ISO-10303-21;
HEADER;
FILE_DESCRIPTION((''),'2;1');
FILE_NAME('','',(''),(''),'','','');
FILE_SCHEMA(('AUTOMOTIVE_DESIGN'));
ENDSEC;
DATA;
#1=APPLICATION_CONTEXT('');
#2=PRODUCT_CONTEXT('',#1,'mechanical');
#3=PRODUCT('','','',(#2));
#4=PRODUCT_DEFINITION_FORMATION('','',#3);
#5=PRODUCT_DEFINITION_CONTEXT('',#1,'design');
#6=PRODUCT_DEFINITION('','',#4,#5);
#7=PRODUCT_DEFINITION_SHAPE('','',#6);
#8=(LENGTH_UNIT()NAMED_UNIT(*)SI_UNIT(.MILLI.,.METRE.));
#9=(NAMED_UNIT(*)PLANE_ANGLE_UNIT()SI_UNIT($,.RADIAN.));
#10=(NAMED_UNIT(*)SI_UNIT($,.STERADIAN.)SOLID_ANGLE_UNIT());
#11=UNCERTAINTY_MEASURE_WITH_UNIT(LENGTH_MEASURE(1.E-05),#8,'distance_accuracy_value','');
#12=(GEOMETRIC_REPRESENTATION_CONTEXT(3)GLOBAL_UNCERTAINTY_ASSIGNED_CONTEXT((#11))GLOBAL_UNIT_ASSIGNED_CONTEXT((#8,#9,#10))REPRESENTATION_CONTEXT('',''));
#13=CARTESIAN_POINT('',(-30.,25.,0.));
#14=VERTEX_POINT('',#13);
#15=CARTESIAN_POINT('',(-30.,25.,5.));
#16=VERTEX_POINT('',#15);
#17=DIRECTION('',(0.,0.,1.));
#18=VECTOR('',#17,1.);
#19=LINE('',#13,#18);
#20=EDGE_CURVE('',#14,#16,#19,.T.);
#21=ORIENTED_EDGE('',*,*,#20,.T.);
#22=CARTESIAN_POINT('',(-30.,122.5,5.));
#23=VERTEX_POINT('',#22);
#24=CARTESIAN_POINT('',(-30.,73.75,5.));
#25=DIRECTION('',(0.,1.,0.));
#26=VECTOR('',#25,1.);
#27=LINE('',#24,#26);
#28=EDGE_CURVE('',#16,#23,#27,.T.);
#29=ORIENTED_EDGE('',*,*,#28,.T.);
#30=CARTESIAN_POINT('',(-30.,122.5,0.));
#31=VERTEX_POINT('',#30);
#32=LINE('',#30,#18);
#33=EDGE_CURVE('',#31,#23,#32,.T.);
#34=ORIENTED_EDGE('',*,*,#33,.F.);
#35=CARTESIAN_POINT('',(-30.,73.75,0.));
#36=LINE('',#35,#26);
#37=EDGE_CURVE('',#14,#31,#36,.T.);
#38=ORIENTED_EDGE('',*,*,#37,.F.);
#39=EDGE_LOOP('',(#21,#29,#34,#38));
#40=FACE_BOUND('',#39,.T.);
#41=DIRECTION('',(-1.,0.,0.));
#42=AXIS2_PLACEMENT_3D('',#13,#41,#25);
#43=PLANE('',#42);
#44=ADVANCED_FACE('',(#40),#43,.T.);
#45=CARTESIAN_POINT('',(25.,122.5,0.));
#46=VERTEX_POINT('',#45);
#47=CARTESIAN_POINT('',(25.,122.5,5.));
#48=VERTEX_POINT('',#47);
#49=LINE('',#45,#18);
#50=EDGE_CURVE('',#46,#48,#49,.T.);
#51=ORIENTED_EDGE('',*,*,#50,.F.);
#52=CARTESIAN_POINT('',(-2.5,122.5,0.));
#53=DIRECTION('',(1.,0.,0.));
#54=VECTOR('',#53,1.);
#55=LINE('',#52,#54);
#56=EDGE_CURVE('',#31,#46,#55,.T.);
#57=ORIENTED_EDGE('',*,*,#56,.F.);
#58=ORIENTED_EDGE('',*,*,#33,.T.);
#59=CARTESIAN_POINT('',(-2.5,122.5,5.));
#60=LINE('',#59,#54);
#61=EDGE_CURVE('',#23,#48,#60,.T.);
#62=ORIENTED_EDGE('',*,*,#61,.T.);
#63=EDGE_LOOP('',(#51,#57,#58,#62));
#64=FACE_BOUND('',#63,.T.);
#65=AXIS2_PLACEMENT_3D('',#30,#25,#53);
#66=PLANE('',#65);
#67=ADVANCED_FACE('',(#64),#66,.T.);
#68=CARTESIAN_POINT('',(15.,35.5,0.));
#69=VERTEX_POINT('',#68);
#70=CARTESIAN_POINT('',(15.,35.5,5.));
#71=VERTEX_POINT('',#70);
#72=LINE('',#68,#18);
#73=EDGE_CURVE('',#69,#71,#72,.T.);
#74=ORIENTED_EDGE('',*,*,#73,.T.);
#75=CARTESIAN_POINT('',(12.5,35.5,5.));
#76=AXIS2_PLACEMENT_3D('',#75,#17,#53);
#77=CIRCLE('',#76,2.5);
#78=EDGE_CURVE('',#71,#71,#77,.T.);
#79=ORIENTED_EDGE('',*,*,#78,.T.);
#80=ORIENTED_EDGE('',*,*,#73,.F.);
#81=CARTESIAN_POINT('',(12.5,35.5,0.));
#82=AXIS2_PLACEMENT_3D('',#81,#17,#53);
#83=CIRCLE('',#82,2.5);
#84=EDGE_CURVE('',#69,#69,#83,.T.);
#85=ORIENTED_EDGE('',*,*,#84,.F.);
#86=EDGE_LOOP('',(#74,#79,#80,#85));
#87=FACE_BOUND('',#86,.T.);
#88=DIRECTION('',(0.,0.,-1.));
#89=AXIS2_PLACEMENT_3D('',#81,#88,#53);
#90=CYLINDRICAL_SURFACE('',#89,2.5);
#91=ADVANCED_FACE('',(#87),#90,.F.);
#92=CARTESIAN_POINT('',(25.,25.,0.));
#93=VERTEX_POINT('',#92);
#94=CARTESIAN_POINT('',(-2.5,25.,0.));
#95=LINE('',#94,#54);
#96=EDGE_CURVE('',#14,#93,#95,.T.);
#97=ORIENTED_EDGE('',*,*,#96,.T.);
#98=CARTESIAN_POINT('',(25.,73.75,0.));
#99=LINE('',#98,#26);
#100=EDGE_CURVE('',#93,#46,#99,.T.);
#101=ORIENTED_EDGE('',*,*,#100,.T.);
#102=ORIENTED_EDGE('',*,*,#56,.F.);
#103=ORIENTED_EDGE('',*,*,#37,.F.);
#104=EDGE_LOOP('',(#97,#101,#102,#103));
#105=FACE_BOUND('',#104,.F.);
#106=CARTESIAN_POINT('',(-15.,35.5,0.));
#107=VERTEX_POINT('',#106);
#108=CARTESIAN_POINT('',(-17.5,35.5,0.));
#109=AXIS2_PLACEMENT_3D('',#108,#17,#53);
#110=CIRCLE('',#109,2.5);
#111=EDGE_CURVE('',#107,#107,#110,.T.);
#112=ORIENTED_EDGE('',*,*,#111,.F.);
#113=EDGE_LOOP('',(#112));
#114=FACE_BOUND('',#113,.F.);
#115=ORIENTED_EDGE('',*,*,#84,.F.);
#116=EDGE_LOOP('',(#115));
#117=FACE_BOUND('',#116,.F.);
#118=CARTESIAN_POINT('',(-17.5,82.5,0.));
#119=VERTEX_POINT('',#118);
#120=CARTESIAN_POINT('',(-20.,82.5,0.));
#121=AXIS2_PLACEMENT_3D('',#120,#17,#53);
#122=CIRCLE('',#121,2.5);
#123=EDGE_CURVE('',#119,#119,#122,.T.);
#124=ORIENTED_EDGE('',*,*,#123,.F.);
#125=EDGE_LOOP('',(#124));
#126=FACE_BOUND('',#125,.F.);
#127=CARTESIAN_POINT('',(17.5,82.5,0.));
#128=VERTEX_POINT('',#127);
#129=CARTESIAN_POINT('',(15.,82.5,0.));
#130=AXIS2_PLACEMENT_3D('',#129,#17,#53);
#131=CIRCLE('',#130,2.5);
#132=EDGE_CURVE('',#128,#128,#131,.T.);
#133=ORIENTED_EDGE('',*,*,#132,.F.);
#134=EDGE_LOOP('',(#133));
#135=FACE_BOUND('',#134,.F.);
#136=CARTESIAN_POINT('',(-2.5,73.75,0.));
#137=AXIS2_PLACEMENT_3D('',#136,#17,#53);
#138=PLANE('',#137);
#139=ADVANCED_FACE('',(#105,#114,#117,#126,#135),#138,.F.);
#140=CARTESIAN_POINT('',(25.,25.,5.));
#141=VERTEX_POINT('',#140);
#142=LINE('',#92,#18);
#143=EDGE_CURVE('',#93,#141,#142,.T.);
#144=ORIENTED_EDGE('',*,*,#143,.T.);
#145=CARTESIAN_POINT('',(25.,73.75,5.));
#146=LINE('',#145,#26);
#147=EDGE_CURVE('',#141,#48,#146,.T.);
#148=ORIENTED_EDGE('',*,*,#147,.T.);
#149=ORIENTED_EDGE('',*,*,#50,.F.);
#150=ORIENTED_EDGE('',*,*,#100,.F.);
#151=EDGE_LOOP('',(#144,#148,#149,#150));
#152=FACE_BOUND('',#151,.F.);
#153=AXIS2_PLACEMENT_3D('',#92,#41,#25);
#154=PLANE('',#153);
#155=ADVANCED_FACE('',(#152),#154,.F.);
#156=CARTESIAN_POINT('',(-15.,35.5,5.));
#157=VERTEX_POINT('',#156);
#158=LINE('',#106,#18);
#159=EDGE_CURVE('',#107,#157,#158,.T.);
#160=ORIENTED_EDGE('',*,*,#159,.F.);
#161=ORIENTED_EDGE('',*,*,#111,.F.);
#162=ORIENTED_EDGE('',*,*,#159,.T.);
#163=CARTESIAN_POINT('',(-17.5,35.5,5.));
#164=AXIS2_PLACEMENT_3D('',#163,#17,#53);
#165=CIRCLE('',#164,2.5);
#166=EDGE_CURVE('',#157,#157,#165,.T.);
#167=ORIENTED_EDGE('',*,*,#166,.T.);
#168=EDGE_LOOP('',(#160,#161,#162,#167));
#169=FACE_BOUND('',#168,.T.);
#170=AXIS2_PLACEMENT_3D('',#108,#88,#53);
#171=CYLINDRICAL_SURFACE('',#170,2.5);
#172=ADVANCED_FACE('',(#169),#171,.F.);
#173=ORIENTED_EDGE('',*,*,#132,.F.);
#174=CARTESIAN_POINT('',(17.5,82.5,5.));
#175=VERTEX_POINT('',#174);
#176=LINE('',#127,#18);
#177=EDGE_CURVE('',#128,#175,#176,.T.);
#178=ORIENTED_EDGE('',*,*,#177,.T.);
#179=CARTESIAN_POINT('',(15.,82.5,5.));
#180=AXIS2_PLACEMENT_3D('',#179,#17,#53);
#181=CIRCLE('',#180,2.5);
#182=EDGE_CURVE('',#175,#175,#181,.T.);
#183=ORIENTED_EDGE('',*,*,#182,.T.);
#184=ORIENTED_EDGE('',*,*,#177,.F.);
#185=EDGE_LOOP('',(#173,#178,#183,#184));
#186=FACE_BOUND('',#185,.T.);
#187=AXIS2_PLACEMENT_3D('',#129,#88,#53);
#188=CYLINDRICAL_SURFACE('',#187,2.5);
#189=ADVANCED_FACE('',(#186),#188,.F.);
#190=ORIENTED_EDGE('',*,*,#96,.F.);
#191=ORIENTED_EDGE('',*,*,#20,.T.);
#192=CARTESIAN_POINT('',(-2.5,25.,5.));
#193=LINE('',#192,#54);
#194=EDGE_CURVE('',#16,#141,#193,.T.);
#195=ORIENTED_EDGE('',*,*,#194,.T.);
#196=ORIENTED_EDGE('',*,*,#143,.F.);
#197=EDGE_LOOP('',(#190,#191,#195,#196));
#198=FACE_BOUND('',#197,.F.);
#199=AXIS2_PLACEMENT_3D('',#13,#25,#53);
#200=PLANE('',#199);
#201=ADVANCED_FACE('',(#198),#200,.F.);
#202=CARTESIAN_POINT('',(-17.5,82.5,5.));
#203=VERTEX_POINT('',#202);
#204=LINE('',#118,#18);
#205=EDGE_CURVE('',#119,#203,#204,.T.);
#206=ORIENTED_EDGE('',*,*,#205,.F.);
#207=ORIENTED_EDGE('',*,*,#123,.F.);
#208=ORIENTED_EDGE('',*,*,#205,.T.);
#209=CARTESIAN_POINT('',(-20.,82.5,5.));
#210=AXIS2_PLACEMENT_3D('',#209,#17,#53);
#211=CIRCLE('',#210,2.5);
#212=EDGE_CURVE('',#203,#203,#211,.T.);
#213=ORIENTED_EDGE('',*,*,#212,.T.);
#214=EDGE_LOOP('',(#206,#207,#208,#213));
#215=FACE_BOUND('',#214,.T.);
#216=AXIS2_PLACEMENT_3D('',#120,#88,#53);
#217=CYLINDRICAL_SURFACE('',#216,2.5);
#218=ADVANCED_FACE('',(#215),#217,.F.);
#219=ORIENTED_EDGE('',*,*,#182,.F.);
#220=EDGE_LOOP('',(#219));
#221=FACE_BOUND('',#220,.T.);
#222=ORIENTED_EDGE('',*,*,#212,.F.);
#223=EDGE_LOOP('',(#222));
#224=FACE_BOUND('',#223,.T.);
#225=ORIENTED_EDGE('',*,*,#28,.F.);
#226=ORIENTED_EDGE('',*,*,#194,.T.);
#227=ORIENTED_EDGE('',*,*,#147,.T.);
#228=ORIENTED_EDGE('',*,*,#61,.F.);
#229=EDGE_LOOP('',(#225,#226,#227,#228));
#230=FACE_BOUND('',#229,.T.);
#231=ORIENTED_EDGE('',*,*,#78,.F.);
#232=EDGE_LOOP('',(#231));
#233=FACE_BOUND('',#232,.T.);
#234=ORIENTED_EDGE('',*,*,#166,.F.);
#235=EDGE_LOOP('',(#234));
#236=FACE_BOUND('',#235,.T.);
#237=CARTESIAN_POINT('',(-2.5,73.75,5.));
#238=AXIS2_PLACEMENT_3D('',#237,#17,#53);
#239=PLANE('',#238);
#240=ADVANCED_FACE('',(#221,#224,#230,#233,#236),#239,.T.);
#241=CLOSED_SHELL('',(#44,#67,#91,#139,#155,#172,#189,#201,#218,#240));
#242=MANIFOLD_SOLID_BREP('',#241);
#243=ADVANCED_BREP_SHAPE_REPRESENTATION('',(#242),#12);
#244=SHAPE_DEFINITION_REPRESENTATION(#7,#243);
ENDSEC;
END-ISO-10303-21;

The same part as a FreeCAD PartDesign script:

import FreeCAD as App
import Part
import Sketcher

V = App.Vector
Q = App.Units.Quantity


def add_polygon(sketch, points):
    """Adds a closed chain of lines whose ends are joined by coincident constraints."""
    first, n = sketch.GeometryCount, len(points)
    for a, b in zip(points, points[1:] + points[:1]):
        sketch.addGeometry(Part.LineSegment(App.Vector(*a, 0), App.Vector(*b, 0)), False)
    for i in range(n):
        sketch.addConstraint(Sketcher.Constraint("Coincident", first + i, 2, first + (i + 1) % n, 1))

doc = App.newDocument("Part")
params = doc.addObject("Spreadsheet::Sheet", "Params")
for row, (alias, value) in enumerate([
    ("sketch1_diameter", "5 mm"),
    ("sketch1_width", "55 mm"),
    ("sketch1_height", "97.5 mm"),
    ("pad1_length", "5 mm"),
], start=1):
    params.set(f"A{row}", alias)
    params.set(f"B{row}", "=" + value)
    params.setAlias(f"B{row}", alias)

body = doc.addObject("PartDesign::Body", "Body")

# Sketch on XY plane
sketch1 = body.newObject("Sketcher::SketchObject", "Sketch")
sketch1.AttachmentSupport = (doc.getObject("XY_Plane"), [""])
sketch1.MapMode = "FlatFace"
add_polygon(sketch1, [(-30, 122.5), (-30, 25), (25, 25), (25, 122.5)])  # lines 0-3
sketch1.addGeometry(Part.Circle(V(-17.5, 35.5, 0), V(0, 0, 1), 2.5), False)  # 4
sketch1.addGeometry(Part.Circle(V(12.5, 35.5, 0), V(0, 0, 1), 2.5), False)  # 5
sketch1.addGeometry(Part.Circle(V(-20, 82.5, 0), V(0, 0, 1), 2.5), False)  # 6
sketch1.addGeometry(Part.Circle(V(15, 82.5, 0), V(0, 0, 1), 2.5), False)  # 7
sketch1.addConstraint([
    Sketcher.Constraint("Vertical", 0),
    Sketcher.Constraint("Horizontal", 1),
    Sketcher.Constraint("Vertical", 2),
    Sketcher.Constraint("Horizontal", 3),
    Sketcher.Constraint("Equal", 4, 5),
    Sketcher.Constraint("Equal", 5, 6),
    Sketcher.Constraint("Equal", 6, 7),
    Sketcher.Constraint("Horizontal", 4, 3, 5, 3),
    Sketcher.Constraint("Horizontal", 6, 3, 7, 3),
    Sketcher.Constraint("Diameter", 4, Q("5 mm")),
    Sketcher.Constraint("DistanceX", 1, 1, 1, 2, Q("55 mm")),
    Sketcher.Constraint("DistanceY", 0, 2, 0, 1, Q("97.5 mm")),
    Sketcher.Constraint("DistanceX", 6, 3, -1, 1, Q("20 mm")),
    Sketcher.Constraint("DistanceX", -1, 1, 7, 3, Q("15 mm")),
    Sketcher.Constraint("DistanceX", 0, 2, -1, 1, Q("30 mm")),
    Sketcher.Constraint("DistanceY", -1, 1, 0, 2, Q("25 mm")),
    Sketcher.Constraint("DistanceX", 4, 3, 5, 3, Q("30 mm")),
    Sketcher.Constraint("DistanceY", 4, 3, 6, 3, Q("47 mm")),
    Sketcher.Constraint("DistanceY", 7, 3, 2, 2, Q("40 mm")),
    Sketcher.Constraint("DistanceX", 4, 3, -1, 1, Q("17.5 mm")),
])
sketch1.setExpression("Constraints[13]", "Params.sketch1_diameter")
sketch1.setExpression("Constraints[14]", "Params.sketch1_width")
sketch1.setExpression("Constraints[15]", "Params.sketch1_height")
pad1 = body.newObject("PartDesign::Pad", "Pad")
pad1.Profile = sketch1
pad1.setExpression("Length", "Params.pad1_length")

doc.recompute()
